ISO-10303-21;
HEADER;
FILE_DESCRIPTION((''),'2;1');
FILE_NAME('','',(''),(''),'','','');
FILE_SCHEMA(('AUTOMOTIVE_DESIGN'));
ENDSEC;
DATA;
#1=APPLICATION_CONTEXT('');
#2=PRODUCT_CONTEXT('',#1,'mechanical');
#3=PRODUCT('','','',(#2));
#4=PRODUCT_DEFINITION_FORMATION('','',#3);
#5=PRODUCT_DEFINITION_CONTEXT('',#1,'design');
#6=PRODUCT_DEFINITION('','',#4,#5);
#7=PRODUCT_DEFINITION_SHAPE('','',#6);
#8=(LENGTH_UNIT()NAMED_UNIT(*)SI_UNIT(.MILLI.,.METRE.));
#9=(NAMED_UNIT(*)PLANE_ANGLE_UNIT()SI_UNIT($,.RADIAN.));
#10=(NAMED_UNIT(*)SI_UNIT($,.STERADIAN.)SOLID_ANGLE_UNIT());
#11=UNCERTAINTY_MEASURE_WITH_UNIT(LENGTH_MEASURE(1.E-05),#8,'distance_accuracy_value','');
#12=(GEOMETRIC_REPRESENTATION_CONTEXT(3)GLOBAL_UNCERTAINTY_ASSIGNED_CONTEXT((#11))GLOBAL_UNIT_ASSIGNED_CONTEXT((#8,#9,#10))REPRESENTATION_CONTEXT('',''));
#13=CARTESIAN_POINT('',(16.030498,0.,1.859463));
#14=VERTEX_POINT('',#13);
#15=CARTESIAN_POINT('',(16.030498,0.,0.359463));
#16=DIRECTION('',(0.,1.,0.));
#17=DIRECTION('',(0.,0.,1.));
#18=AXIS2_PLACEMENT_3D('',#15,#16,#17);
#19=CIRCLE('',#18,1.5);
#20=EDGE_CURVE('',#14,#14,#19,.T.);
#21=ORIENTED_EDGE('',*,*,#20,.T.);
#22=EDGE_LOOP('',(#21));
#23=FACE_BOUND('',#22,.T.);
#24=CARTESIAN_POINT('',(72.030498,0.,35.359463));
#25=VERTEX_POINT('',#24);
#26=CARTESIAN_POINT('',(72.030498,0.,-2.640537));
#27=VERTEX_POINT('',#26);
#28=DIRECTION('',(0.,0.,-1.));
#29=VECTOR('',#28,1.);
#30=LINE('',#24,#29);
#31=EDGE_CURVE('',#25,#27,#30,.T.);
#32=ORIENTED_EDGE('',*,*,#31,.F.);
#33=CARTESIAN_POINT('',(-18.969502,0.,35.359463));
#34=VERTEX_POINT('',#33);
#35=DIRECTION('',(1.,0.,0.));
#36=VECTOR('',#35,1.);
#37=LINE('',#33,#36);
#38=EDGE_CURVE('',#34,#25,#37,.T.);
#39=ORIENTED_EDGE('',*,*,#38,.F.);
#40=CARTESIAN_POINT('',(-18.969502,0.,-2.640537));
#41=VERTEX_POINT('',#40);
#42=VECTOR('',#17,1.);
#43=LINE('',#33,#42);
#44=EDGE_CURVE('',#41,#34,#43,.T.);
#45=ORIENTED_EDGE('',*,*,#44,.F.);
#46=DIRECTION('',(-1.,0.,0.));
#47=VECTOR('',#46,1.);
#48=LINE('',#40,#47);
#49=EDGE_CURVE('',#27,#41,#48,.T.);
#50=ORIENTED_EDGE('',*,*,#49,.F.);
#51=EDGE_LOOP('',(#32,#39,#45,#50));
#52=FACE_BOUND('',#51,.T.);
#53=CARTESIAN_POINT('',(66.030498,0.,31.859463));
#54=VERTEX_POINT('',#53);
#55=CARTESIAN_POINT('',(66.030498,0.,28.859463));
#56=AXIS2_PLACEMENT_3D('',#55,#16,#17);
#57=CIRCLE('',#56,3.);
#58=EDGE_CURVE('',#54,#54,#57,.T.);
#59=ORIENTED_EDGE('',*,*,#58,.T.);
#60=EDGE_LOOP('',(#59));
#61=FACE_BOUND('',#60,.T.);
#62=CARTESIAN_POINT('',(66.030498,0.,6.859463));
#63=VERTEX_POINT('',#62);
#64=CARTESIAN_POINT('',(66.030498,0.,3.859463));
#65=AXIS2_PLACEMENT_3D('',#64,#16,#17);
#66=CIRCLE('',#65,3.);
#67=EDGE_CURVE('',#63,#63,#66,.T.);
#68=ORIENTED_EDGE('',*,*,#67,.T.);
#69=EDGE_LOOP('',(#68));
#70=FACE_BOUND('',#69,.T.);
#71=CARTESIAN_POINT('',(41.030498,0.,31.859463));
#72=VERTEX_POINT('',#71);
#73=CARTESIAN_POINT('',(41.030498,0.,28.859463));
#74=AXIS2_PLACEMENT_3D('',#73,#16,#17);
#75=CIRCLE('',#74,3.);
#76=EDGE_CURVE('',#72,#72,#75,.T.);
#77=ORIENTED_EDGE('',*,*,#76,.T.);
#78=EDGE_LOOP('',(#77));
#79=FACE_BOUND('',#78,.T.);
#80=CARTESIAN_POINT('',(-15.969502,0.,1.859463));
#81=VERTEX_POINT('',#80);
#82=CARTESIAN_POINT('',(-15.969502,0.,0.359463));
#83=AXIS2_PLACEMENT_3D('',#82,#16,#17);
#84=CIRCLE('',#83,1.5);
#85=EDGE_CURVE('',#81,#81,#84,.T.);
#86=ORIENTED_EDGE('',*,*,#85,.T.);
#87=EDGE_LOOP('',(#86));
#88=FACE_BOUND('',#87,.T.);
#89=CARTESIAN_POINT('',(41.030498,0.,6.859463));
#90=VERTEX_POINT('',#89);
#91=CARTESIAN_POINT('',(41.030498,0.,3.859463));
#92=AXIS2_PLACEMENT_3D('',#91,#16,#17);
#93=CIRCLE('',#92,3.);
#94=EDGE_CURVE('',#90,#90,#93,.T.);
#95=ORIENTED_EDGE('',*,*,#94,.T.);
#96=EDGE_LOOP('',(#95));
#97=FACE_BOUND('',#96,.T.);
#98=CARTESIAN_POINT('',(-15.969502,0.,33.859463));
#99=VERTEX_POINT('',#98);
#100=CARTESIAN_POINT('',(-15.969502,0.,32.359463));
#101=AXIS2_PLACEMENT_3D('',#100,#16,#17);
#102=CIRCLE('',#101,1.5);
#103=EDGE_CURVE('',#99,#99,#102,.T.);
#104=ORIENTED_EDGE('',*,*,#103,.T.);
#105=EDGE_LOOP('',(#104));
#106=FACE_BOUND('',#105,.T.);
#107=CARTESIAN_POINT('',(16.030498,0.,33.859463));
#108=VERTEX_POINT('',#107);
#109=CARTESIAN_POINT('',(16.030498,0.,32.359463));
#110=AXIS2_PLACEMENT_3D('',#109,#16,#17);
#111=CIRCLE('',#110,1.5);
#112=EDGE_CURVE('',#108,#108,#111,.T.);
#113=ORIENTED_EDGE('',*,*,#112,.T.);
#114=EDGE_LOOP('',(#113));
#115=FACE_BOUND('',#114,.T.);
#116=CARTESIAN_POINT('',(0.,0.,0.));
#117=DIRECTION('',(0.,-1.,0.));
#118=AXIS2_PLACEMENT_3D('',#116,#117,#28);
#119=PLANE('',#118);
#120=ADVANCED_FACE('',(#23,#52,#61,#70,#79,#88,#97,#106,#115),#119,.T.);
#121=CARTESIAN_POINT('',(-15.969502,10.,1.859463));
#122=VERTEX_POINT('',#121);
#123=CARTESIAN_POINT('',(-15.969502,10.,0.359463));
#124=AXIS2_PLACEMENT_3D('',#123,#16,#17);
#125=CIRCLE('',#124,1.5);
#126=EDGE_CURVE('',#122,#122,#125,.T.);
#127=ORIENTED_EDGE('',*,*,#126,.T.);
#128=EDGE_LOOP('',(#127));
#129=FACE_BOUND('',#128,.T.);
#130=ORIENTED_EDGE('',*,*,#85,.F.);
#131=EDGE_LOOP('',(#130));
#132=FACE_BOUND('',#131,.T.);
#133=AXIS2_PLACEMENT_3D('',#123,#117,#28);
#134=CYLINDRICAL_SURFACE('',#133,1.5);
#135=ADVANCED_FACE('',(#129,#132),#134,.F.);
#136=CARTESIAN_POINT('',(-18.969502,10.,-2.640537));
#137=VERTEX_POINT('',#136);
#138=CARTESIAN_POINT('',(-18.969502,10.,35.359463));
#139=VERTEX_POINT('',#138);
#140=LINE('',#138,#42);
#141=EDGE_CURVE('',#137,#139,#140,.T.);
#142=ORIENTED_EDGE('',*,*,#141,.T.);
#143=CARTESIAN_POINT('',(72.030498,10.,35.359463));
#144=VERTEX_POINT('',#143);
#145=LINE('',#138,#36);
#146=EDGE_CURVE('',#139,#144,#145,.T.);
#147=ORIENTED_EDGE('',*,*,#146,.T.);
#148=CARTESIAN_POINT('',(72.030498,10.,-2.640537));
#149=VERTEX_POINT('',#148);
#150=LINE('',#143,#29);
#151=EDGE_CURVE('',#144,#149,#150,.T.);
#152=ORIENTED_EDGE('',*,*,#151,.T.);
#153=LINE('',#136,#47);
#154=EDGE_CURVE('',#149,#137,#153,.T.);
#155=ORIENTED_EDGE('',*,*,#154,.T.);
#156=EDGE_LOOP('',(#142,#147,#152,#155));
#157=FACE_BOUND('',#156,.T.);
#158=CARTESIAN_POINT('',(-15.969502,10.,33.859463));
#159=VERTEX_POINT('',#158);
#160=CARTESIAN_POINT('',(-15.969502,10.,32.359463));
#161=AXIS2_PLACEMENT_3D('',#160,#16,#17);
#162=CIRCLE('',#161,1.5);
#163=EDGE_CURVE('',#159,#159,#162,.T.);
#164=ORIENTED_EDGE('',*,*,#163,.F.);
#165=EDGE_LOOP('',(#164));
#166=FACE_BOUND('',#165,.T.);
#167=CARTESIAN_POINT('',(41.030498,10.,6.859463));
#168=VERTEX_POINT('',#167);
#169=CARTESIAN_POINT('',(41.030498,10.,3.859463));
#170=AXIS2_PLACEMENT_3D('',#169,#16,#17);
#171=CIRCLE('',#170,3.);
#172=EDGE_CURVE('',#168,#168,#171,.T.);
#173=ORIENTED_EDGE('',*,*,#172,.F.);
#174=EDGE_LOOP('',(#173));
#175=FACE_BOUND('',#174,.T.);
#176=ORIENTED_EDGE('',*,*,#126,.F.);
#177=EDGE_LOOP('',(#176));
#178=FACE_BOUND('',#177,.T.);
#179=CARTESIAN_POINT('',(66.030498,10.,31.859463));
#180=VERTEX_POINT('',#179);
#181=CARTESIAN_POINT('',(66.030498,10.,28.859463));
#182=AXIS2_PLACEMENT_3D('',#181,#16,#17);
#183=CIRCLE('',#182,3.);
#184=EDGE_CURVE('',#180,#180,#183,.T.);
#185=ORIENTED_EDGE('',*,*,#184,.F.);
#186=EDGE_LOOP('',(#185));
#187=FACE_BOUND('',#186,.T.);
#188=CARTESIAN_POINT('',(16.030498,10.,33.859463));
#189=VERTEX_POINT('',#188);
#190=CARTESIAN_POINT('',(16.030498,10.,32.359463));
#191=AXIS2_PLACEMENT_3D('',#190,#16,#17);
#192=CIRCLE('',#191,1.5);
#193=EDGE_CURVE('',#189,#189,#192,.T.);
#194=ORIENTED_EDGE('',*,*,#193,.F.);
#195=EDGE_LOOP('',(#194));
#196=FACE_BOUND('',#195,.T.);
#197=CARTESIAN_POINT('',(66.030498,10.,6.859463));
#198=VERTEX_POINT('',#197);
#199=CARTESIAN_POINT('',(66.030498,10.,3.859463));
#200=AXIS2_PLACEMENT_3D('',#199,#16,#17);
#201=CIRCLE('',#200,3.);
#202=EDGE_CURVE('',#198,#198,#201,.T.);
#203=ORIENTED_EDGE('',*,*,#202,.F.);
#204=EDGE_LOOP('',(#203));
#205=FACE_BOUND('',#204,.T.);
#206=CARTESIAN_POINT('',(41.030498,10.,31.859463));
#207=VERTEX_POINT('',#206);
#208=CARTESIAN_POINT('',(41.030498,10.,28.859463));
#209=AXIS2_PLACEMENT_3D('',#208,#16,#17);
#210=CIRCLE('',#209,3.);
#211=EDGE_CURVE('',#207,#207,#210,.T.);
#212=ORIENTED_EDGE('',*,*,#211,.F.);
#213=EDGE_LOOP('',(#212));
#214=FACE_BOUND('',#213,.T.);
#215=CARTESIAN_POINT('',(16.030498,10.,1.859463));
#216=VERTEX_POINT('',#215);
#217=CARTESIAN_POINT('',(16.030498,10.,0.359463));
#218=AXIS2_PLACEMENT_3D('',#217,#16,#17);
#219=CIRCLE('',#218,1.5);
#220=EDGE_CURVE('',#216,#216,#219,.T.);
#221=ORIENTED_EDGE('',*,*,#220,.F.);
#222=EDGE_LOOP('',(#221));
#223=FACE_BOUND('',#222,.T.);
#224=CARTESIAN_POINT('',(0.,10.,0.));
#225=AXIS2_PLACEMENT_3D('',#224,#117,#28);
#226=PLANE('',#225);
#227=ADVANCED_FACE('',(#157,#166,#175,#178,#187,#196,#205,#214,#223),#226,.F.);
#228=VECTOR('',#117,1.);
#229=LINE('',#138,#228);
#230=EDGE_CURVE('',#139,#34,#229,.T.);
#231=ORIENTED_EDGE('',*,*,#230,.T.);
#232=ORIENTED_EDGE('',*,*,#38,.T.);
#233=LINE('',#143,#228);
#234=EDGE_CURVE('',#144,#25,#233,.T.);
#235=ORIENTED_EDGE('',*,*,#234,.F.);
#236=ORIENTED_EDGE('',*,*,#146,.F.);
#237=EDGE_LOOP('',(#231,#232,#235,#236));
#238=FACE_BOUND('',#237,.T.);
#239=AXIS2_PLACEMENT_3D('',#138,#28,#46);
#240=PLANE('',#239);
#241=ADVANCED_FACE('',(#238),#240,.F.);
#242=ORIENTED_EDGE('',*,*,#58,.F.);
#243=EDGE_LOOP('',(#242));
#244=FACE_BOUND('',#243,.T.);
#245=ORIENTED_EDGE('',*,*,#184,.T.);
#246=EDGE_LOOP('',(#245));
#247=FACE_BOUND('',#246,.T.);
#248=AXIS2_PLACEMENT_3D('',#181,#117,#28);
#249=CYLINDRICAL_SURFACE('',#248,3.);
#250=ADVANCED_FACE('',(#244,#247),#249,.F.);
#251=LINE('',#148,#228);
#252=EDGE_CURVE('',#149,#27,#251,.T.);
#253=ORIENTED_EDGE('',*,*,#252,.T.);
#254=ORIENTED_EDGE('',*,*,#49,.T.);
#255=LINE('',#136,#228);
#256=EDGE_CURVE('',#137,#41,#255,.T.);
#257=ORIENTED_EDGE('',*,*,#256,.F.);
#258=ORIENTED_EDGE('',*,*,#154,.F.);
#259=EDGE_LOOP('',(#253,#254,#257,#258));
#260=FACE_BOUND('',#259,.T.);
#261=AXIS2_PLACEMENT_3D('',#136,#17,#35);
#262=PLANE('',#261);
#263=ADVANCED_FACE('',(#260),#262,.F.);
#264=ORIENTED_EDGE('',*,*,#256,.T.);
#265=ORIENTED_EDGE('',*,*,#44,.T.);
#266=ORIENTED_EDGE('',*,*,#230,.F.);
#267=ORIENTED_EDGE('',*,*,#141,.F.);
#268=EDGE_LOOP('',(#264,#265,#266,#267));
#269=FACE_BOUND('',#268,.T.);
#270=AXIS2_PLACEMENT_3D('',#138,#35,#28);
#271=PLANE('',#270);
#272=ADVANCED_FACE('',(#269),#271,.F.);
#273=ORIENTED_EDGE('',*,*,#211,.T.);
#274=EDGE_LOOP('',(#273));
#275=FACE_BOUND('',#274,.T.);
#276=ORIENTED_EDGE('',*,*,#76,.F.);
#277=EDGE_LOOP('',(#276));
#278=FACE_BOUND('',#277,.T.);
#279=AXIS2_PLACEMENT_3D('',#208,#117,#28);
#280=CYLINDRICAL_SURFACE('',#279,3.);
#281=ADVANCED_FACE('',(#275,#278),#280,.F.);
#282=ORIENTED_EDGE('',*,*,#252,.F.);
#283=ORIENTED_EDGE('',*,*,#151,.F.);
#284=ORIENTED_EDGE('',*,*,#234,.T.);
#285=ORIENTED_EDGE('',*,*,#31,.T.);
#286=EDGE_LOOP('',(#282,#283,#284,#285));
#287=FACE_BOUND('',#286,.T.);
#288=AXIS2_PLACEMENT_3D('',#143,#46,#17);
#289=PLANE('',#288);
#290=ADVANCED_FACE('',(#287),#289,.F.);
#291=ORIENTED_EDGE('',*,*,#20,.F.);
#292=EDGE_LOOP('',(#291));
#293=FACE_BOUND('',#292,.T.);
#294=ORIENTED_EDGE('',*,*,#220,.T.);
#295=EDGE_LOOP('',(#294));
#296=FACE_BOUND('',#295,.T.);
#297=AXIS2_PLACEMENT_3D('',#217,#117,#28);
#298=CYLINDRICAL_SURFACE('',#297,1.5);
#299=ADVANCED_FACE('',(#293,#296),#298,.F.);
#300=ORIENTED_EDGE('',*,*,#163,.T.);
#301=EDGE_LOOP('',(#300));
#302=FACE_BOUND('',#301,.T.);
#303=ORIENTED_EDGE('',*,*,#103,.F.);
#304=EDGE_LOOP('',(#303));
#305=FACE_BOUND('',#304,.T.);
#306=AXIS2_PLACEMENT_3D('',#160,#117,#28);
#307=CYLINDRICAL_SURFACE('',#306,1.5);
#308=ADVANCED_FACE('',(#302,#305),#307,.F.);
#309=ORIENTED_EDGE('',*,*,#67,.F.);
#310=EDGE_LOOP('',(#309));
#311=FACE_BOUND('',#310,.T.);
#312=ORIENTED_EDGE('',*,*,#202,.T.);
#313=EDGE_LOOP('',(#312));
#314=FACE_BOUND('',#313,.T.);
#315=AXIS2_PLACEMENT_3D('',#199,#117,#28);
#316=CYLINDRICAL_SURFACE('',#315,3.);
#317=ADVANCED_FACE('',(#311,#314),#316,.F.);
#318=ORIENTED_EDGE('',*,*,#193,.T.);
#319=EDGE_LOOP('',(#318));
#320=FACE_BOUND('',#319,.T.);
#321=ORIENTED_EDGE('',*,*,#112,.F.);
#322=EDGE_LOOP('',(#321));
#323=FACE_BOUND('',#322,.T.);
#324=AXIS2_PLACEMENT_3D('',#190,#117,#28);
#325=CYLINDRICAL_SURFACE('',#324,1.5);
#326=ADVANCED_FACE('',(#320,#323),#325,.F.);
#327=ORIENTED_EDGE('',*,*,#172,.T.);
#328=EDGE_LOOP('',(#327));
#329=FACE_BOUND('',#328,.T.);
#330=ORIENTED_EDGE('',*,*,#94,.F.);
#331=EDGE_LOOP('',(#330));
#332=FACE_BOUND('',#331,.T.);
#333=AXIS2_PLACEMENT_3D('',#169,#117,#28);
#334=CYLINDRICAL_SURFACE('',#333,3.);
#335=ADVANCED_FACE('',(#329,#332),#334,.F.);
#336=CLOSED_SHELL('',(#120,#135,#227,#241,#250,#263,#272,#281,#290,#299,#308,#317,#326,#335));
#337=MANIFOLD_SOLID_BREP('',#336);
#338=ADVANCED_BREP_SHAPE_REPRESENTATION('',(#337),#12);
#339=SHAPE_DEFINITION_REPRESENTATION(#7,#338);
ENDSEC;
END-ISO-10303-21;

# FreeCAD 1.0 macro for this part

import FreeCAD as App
import Part
import Sketcher
from FreeCAD import Vector
Q = App.Units.Quantity

doc = App.newDocument("Part")
body = doc.addObject("PartDesign::Body", "Body")

# Sketch on XZ plane
sketch1 = body.newObject("Sketcher::SketchObject", "Sketch")
sketch1.AttachmentSupport = (doc.getObject("XZ_Plane"), [""])
sketch1.MapMode = "FlatFace"
sketch1.addGeometry(Part.LineSegment(Vector(-19, -2.6, 0), Vector(-19, 35.4, 0)), False)
sketch1.addGeometry(Part.LineSegment(Vector(-19, 35.4, 0), Vector(72, 35.4, 0)), False)
sketch1.addGeometry(Part.LineSegment(Vector(72, 35.4, 0), Vector(72, -2.6, 0)), False)
sketch1.addGeometry(Part.LineSegment(Vector(72, -2.6, 0), Vector(-19, -2.6, 0)), False)
sketch1.addGeometry(Part.Circle(Vector(-16, 32.4, 0), Vector(0, 0, 1), 1.5), False)
sketch1.addGeometry(Part.Circle(Vector(16, 32.4, 0), Vector(0, 0, 1), 1.5), False)
sketch1.addGeometry(Part.Circle(Vector(41, 28.9, 0), Vector(0, 0, 1), 3), False)
sketch1.addGeometry(Part.Circle(Vector(66, 28.9, 0), Vector(0, 0, 1), 3), False)
sketch1.addGeometry(Part.Circle(Vector(-16, 0.4, 0), Vector(0, 0, 1), 1.5), False)
sketch1.addGeometry(Part.Circle(Vector(16, 0.4, 0), Vector(0, 0, 1), 1.5), False)
sketch1.addGeometry(Part.Circle(Vector(41, 3.9, 0), Vector(0, 0, 1), 3), False)
sketch1.addGeometry(Part.Circle(Vector(66, 3.9, 0), Vector(0, 0, 1), 3), False)
sketch1.addConstraint(Sketcher.Constraint("Coincident", 0, 2, 1, 1))
sketch1.addConstraint(Sketcher.Constraint("Coincident", 1, 2, 2, 1))
sketch1.addConstraint(Sketcher.Constraint("Coincident", 2, 2, 3, 1))
sketch1.addConstraint(Sketcher.Constraint("Coincident", 3, 2, 0, 1))
sketch1.addConstraint(Sketcher.Constraint("Vertical", 0))
sketch1.addConstraint(Sketcher.Constraint("Horizontal", 1))
sketch1.addConstraint(Sketcher.Constraint("Vertical", 2))
sketch1.addConstraint(Sketcher.Constraint("Horizontal", 3))
sketch1.addConstraint(Sketcher.Constraint("Equal", 4, 5))
sketch1.addConstraint(Sketcher.Constraint("Equal", 6, 7))
sketch1.addConstraint(Sketcher.Constraint("Equal", 5, 8))
sketch1.addConstraint(Sketcher.Constraint("Equal", 8, 9))
sketch1.addConstraint(Sketcher.Constraint("Equal", 7, 10))
sketch1.addConstraint(Sketcher.Constraint("Equal", 10, 11))
sketch1.addConstraint(Sketcher.Constraint("Horizontal", 4, 3, 5, 3))
sketch1.addConstraint(Sketcher.Constraint("Horizontal", 6, 3, 7, 3))
sketch1.addConstraint(Sketcher.Constraint("Horizontal", 8, 3, 9, 3))
sketch1.addConstraint(Sketcher.Constraint("Horizontal", 10, 3, 11, 3))
sketch1.addConstraint(Sketcher.Constraint("Vertical", 4, 3, 8, 3))
sketch1.addConstraint(Sketcher.Constraint("Vertical", 5, 3, 9, 3))
sketch1.addConstraint(Sketcher.Constraint("Vertical", 6, 3, 10, 3))
sketch1.addConstraint(Sketcher.Constraint("Vertical", 7, 3, 11, 3))
sketch1.addConstraint(Sketcher.Constraint("Diameter", 4, Q("3 mm")))
sketch1.addConstraint(Sketcher.Constraint("Diameter", 6, Q("6 mm")))
sketch1.addConstraint(Sketcher.Constraint("DistanceX", 1, 1, 1, 2, Q("91 mm")))
sketch1.addConstraint(Sketcher.Constraint("DistanceY", 0, 1, 0, 2, Q("38 mm")))
sketch1.addConstraint(Sketcher.Constraint("DistanceX", 4, 3, 5, 3, Q("32 mm")))
sketch1.addConstraint(Sketcher.Constraint("DistanceX", 5, 3, 6, 3, Q("25 mm")))
sketch1.addConstraint(Sketcher.Constraint("DistanceX", 6, 3, 7, 3, Q("25 mm")))
sketch1.addConstraint(Sketcher.Constraint("DistanceY", 8, 3, 4, 3, Q("32 mm")))
sketch1.addConstraint(Sketcher.Constraint("DistanceY", 10, 3, 6, 3, Q("25 mm")))
sketch1.addConstraint(Sketcher.Constraint("DistanceX", 0, 2, 4, 3, Q("3 mm")))
sketch1.addConstraint(Sketcher.Constraint("DistanceY", 4, 3, 0, 2, Q("3 mm")))
sketch1.addConstraint(Sketcher.Constraint("DistanceY", 6, 3, 5, 3, Q("3.5 mm")))
sketch1.addConstraint(Sketcher.Constraint("DistanceX", 4, 3, -1, 1, Q("15.969502 mm")))
sketch1.addConstraint(Sketcher.Constraint("DistanceY", -1, 1, 4, 3, Q("32.359463 mm")))
pad1 = body.newObject("PartDesign::Pad", "Pad")
pad1.Profile = sketch1
pad1.Length = 10
pad1.Reversed = True

doc.recompute()
